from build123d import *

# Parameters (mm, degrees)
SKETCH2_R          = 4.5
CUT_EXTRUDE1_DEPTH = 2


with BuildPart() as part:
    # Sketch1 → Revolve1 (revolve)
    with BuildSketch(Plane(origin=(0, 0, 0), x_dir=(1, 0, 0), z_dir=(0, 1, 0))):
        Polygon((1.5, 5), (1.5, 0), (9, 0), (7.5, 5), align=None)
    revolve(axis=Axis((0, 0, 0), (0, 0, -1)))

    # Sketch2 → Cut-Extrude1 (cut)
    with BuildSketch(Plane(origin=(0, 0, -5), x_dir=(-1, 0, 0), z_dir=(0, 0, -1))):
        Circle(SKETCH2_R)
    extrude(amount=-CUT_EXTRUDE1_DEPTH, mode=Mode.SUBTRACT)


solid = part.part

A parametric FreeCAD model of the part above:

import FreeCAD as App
import Part
import Sketcher
from FreeCAD import Vector
Q = App.Units.Quantity

doc = App.newDocument("Part")
params = doc.addObject("Spreadsheet::Sheet", "Params")
for row, (alias, value) in enumerate([
    ("sketch1_width", "6 mm"),
    ("sketch1_height", "5 mm"),
    ("sketch1_width2", "7.5 mm"),
    ("revolution_angle", "360 deg"),
    ("sketch2_diameter", "9 mm"),
    ("pocket1_length", "2 mm"),
], start=1):
    params.set(f"A{row}", alias)
    params.set(f"B{row}", "=" + value)
    params.setAlias(f"B{row}", alias)

body = doc.addObject("PartDesign::Body", "Body")

sketch1 = body.newObject("Sketcher::SketchObject", "Sketch")
sketch1.AttachmentSupport = (doc.getObject("XZ_Plane"), [""])
sketch1.MapMode = "FlatFace"
sketch1.addGeometry(Part.LineSegment(Vector(2, -5, 0), Vector(2, 0, 0)), False)
sketch1.addGeometry(Part.LineSegment(Vector(2, 0, 0), Vector(9, 0, 0)), False)
sketch1.addGeometry(Part.LineSegment(Vector(9, 0, 0), Vector(8, -5, 0)), False)
sketch1.addGeometry(Part.LineSegment(Vector(8, -5, 0), Vector(2, -5, 0)), False)
sketch1.addConstraint(Sketcher.Constraint("Coincident", 0, 2, 1, 1))
sketch1.addConstraint(Sketcher.Constraint("Coincident", 1, 2, 2, 1))
sketch1.addConstraint(Sketcher.Constraint("Coincident", 2, 2, 3, 1))
sketch1.addConstraint(Sketcher.Constraint("Coincident", 3, 2, 0, 1))
sketch1.addConstraint(Sketcher.Constraint("Vertical", 0))
sketch1.addConstraint(Sketcher.Constraint("Horizontal", 1))
sketch1.addConstraint(Sketcher.Constraint("Horizontal", 3))
sketch1.addConstraint(Sketcher.Constraint("PointOnObject", 0, 2, -1))
sketch1.addConstraint(Sketcher.Constraint("DistanceX", 3, 2, 3, 1, Q("6 mm")))
sketch1.addConstraint(Sketcher.Constraint("DistanceY", 0, 1, 0, 2, Q("5 mm")))
sketch1.addConstraint(Sketcher.Constraint("DistanceX", 1, 1, 1, 2, Q("7.5 mm")))
sketch1.addConstraint(Sketcher.Constraint("DistanceX", -1, 1, 1, 2, Q("9 mm")))
sketch1.setExpression("Constraints[8]", "Params.sketch1_width")
sketch1.setExpression("Constraints[9]", "Params.sketch1_height")
sketch1.setExpression("Constraints[10]", "Params.sketch1_width2")
revolution = body.newObject("PartDesign::Revolution", "Revolution")
revolution.Profile = sketch1
revolution.ReferenceAxis = (sketch1, ["V_Axis"])
revolution.setExpression("Angle", "Params.revolution_angle")

sketch2 = body.newObject("Sketcher::SketchObject", "Sketch001")
sketch2.AttachmentSupport = (doc.getObject("XY_Plane"), [""])
sketch2.MapMode = "FlatFace"
sketch2.AttachmentOffset = App.Placement(Vector(0, 0, -5), App.Rotation())
sketch2.addGeometry(Part.Circle(Vector(0, 0, 0), Vector(0, 0, 1), 4.5), False)
sketch2.addConstraint(Sketcher.Constraint("Coincident", 0, 3, -1, 1))
sketch2.addConstraint(Sketcher.Constraint("Diameter", 0, Q("9 mm")))
sketch2.setExpression("Constraints[1]", "Params.sketch2_diameter")
pocket1 = body.newObject("PartDesign::Pocket", "Pocket")
pocket1.Profile = sketch2
pocket1.setExpression("Length", "Params.pocket1_length")
pocket1.Reversed = True

doc.recompute()
